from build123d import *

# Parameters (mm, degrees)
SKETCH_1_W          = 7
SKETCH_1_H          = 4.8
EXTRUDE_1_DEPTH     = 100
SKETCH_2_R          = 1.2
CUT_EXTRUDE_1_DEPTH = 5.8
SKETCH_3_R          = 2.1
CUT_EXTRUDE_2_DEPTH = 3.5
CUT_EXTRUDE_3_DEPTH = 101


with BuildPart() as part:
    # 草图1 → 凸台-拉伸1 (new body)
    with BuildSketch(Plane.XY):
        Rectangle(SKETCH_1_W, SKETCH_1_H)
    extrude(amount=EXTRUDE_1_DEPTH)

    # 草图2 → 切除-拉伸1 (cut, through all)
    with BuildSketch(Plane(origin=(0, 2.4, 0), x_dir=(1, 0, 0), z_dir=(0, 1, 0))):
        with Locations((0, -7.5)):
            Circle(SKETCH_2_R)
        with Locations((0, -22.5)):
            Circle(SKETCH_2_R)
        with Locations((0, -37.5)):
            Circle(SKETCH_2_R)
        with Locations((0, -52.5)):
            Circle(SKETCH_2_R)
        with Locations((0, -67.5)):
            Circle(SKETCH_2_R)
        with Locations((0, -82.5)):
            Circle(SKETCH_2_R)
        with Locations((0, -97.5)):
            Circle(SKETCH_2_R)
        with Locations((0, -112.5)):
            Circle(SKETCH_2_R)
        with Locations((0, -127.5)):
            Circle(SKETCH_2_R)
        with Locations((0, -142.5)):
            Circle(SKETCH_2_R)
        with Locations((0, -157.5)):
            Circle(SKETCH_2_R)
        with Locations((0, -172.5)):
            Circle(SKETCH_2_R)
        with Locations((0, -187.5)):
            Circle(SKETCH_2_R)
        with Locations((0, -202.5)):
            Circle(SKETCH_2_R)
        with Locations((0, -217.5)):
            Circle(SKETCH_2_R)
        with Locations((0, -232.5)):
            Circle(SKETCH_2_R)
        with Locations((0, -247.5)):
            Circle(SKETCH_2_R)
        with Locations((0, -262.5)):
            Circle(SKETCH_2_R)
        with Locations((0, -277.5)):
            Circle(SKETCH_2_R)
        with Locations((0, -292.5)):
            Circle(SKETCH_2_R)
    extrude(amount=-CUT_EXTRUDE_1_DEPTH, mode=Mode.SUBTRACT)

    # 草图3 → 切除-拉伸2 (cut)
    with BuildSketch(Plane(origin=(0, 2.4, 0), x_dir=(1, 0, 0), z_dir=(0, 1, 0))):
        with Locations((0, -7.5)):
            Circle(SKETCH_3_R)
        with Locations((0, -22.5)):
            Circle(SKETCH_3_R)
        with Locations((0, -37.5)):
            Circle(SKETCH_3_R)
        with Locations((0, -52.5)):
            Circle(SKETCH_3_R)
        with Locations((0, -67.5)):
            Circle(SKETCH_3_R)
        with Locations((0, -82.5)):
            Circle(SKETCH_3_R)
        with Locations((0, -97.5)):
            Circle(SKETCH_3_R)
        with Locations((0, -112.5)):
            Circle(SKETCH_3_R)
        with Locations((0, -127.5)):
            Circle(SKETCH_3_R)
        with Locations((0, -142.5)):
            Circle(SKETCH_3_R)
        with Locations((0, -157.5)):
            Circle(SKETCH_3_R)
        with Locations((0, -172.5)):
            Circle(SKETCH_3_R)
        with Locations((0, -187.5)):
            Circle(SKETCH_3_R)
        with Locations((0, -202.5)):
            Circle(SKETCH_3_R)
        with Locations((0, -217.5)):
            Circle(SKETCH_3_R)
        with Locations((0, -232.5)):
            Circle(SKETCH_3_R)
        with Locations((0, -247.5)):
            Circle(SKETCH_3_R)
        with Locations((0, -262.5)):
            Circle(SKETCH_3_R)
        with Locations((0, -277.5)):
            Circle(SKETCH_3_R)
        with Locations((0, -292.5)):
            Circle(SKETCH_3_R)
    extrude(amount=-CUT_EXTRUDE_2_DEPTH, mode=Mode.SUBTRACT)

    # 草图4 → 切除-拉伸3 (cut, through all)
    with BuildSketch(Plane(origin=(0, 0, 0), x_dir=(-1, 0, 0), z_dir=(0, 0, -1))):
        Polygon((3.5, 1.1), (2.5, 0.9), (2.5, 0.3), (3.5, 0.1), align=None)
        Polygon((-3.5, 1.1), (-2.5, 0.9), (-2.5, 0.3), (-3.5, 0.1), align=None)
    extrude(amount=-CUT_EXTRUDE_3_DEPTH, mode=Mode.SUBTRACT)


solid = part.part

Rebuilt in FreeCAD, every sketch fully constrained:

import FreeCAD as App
import Part
import Sketcher

doc = App.newDocument("Part")
body = doc.addObject("PartDesign::Body", "Body")

sketch1 = doc.addObject("Sketcher::SketchObject", "Sketch")
body.addObject(sketch1)
sketch1.AttachmentSupport = (doc.XY_Plane, [""])
sketch1.MapMode = "FlatFace"
sketch1.addGeometry([
    Part.LineSegment(App.Vector(-3.5, 2.4, 0), App.Vector(-3.5, -2.4, 0)),
    Part.LineSegment(App.Vector(-3.5, -2.4, 0), App.Vector(3.5, -2.4, 0)),
    Part.LineSegment(App.Vector(3.5, -2.4, 0), App.Vector(3.5, 2.4, 0)),
    Part.LineSegment(App.Vector(3.5, 2.4, 0), App.Vector(-3.5, 2.4, 0)),
], False)
sketch1.addConstraint([
    Sketcher.Constraint("Coincident", 0, 2, 1, 1),
    Sketcher.Constraint("Coincident", 1, 2, 2, 1),
    Sketcher.Constraint("Coincident", 2, 2, 3, 1),
    Sketcher.Constraint("Coincident", 3, 2, 0, 1),
    Sketcher.Constraint("Vertical", 0),
    Sketcher.Constraint("Horizontal", 1),
    Sketcher.Constraint("Vertical", 2),
    Sketcher.Constraint("Horizontal", 3),
    Sketcher.Constraint("Symmetric", 0, 2, 2, 2, -1, 1),
    Sketcher.Constraint("DistanceX", 1, 1, 1, 2, 7.0),
    Sketcher.Constraint("DistanceY", 0, 2, 0, 1, 4.8),
])
pad1 = doc.addObject("PartDesign::Pad", "Pad")
body.addObject(pad1)
pad1.Profile = sketch1
pad1.Length = 100

sketch2 = doc.addObject("Sketcher::SketchObject", "Sketch001")
body.addObject(sketch2)
sketch2.AttachmentSupport = (doc.XZ_Plane, [""])
sketch2.MapMode = "FlatFace"
sketch2.AttachmentOffset = App.Placement(App.Vector(0, 0, -2.4), App.Rotation())
sketch2.addGeometry([
    Part.Circle(App.Vector(0, 7.5, 0), App.Vector(0, 0, 1), 1.2),
    Part.Circle(App.Vector(0, 22.5, 0), App.Vector(0, 0, 1), 1.2),
    Part.Circle(App.Vector(0, 37.5, 0), App.Vector(0, 0, 1), 1.2),
    Part.Circle(App.Vector(0, 52.5, 0), App.Vector(0, 0, 1), 1.2),
    Part.Circle(App.Vector(0, 67.5, 0), App.Vector(0, 0, 1), 1.2),
    Part.Circle(App.Vector(0, 82.5, 0), App.Vector(0, 0, 1), 1.2),
    Part.Circle(App.Vector(0, 97.5, 0), App.Vector(0, 0, 1), 1.2),
    Part.Circle(App.Vector(0, 112.5, 0), App.Vector(0, 0, 1), 1.2),
    Part.Circle(App.Vector(0, 127.5, 0), App.Vector(0, 0, 1), 1.2),
    Part.Circle(App.Vector(0, 142.5, 0), App.Vector(0, 0, 1), 1.2),
    Part.Circle(App.Vector(0, 157.5, 0), App.Vector(0, 0, 1), 1.2),
    Part.Circle(App.Vector(0, 172.5, 0), App.Vector(0, 0, 1), 1.2),
    Part.Circle(App.Vector(0, 187.5, 0), App.Vector(0, 0, 1), 1.2),
    Part.Circle(App.Vector(0, 202.5, 0), App.Vector(0, 0, 1), 1.2),
    Part.Circle(App.Vector(0, 217.5, 0), App.Vector(0, 0, 1), 1.2),
    Part.Circle(App.Vector(0, 232.5, 0), App.Vector(0, 0, 1), 1.2),
    Part.Circle(App.Vector(0, 247.5, 0), App.Vector(0, 0, 1), 1.2),
    Part.Circle(App.Vector(0, 262.5, 0), App.Vector(0, 0, 1), 1.2),
    Part.Circle(App.Vector(0, 277.5, 0), App.Vector(0, 0, 1), 1.2),
    Part.Circle(App.Vector(0, 292.5, 0), App.Vector(0, 0, 1), 1.2),
], False)
sketch2.addConstraint([
    Sketcher.Constraint("Equal", 0, 1),
    Sketcher.Constraint("Equal", 1, 2),
    Sketcher.Constraint("Equal", 2, 3),
    Sketcher.Constraint("Equal", 3, 4),
    Sketcher.Constraint("Equal", 4, 5),
    Sketcher.Constraint("Equal", 5, 6),
    Sketcher.Constraint("Equal", 6, 7),
    Sketcher.Constraint("Equal", 7, 8),
    Sketcher.Constraint("Equal", 8, 9),
    Sketcher.Constraint("Equal", 9, 10),
    Sketcher.Constraint("Equal", 10, 11),
    Sketcher.Constraint("Equal", 11, 12),
    Sketcher.Constraint("Equal", 12, 13),
    Sketcher.Constraint("Equal", 13, 14),
    Sketcher.Constraint("Equal", 14, 15),
    Sketcher.Constraint("Equal", 15, 16),
    Sketcher.Constraint("Equal", 16, 17),
    Sketcher.Constraint("Equal", 17, 18),
    Sketcher.Constraint("Equal", 18, 19),
    Sketcher.Constraint("PointOnObject", 0, 3, -2),
    Sketcher.Constraint("PointOnObject", 1, 3, -2),
    Sketcher.Constraint("PointOnObject", 2, 3, -2),
    Sketcher.Constraint("PointOnObject", 3, 3, -2),
    Sketcher.Constraint("PointOnObject", 4, 3, -2),
    Sketcher.Constraint("PointOnObject", 5, 3, -2),
    Sketcher.Constraint("PointOnObject", 6, 3, -2),
    Sketcher.Constraint("PointOnObject", 7, 3, -2),
    Sketcher.Constraint("PointOnObject", 8, 3, -2),
    Sketcher.Constraint("PointOnObject", 9, 3, -2),
    Sketcher.Constraint("PointOnObject", 10, 3, -2),
    Sketcher.Constraint("PointOnObject", 11, 3, -2),
    Sketcher.Constraint("PointOnObject", 12, 3, -2),
    Sketcher.Constraint("PointOnObject", 13, 3, -2),
    Sketcher.Constraint("PointOnObject", 14, 3, -2),
    Sketcher.Constraint("PointOnObject", 15, 3, -2),
    Sketcher.Constraint("PointOnObject", 16, 3, -2),
    Sketcher.Constraint("PointOnObject", 17, 3, -2),
    Sketcher.Constraint("PointOnObject", 18, 3, -2),
    Sketcher.Constraint("PointOnObject", 19, 3, -2),
    Sketcher.Constraint("Diameter", 0, 2.4),
    Sketcher.Constraint("DistanceY", 0, 3, 1, 3, 15.0),
    Sketcher.Constraint("DistanceY", 1, 3, 2, 3, 15.0),
    Sketcher.Constraint("DistanceY", 2, 3, 3, 3, 15.0),
    Sketcher.Constraint("DistanceY", 3, 3, 4, 3, 15.0),
    Sketcher.Constraint("DistanceY", 4, 3, 5, 3, 15.0),
    Sketcher.Constraint("DistanceY", 5, 3, 6, 3, 15.0),
    Sketcher.Constraint("DistanceY", 6, 3, 7, 3, 15.0),
    Sketcher.Constraint("DistanceY", 7, 3, 8, 3, 15.0),
    Sketcher.Constraint("DistanceY", 8, 3, 9, 3, 15.0),
    Sketcher.Constraint("DistanceY", 9, 3, 10, 3, 15.0),
    Sketcher.Constraint("DistanceY", 10, 3, 11, 3, 15.0),
    Sketcher.Constraint("DistanceY", 11, 3, 12, 3, 15.0),
    Sketcher.Constraint("DistanceY", 12, 3, 13, 3, 15.0),
    Sketcher.Constraint("DistanceY", 13, 3, 14, 3, 15.0),
    Sketcher.Constraint("DistanceY", 14, 3, 15, 3, 15.0),
    Sketcher.Constraint("DistanceY", 15, 3, 16, 3, 15.0),
    Sketcher.Constraint("DistanceY", 16, 3, 17, 3, 15.0),
    Sketcher.Constraint("DistanceY", 17, 3, 18, 3, 15.0),
    Sketcher.Constraint("DistanceY", 18, 3, 19, 3, 15.0),
    Sketcher.Constraint("DistanceY", -1, 1, 0, 3, 7.5),
])
pocket1 = doc.addObject("PartDesign::Pocket", "Pocket")
body.addObject(pocket1)
pocket1.Profile = sketch2
pocket1.Type = "ThroughAll"
pocket1.Reversed = True

sketch3 = doc.addObject("Sketcher::SketchObject", "Sketch002")
body.addObject(sketch3)
sketch3.AttachmentSupport = (doc.XZ_Plane, [""])
sketch3.MapMode = "FlatFace"
sketch3.AttachmentOffset = App.Placement(App.Vector(0, 0, -2.4), App.Rotation())
sketch3.addGeometry([
    Part.Circle(App.Vector(0, 7.5, 0), App.Vector(0, 0, 1), 2.1),
    Part.Circle(App.Vector(0, 22.5, 0), App.Vector(0, 0, 1), 2.1),
    Part.Circle(App.Vector(0, 37.5, 0), App.Vector(0, 0, 1), 2.1),
    Part.Circle(App.Vector(0, 52.5, 0), App.Vector(0, 0, 1), 2.1),
    Part.Circle(App.Vector(0, 67.5, 0), App.Vector(0, 0, 1), 2.1),
    Part.Circle(App.Vector(0, 82.5, 0), App.Vector(0, 0, 1), 2.1),
    Part.Circle(App.Vector(0, 97.5, 0), App.Vector(0, 0, 1), 2.1),
    Part.Circle(App.Vector(0, 112.5, 0), App.Vector(0, 0, 1), 2.1),
    Part.Circle(App.Vector(0, 127.5, 0), App.Vector(0, 0, 1), 2.1),
    Part.Circle(App.Vector(0, 142.5, 0), App.Vector(0, 0, 1), 2.1),
    Part.Circle(App.Vector(0, 157.5, 0), App.Vector(0, 0, 1), 2.1),
    Part.Circle(App.Vector(0, 172.5, 0), App.Vector(0, 0, 1), 2.1),
    Part.Circle(App.Vector(0, 187.5, 0), App.Vector(0, 0, 1), 2.1),
    Part.Circle(App.Vector(0, 202.5, 0), App.Vector(0, 0, 1), 2.1),
    Part.Circle(App.Vector(0, 217.5, 0), App.Vector(0, 0, 1), 2.1),
    Part.Circle(App.Vector(0, 232.5, 0), App.Vector(0, 0, 1), 2.1),
    Part.Circle(App.Vector(0, 247.5, 0), App.Vector(0, 0, 1), 2.1),
    Part.Circle(App.Vector(0, 262.5, 0), App.Vector(0, 0, 1), 2.1),
    Part.Circle(App.Vector(0, 277.5, 0), App.Vector(0, 0, 1), 2.1),
    Part.Circle(App.Vector(0, 292.5, 0), App.Vector(0, 0, 1), 2.1),
], False)
sketch3.addConstraint([
    Sketcher.Constraint("Equal", 0, 1),
    Sketcher.Constraint("Equal", 1, 2),
    Sketcher.Constraint("Equal", 2, 3),
    Sketcher.Constraint("Equal", 3, 4),
    Sketcher.Constraint("Equal", 4, 5),
    Sketcher.Constraint("Equal", 5, 6),
    Sketcher.Constraint("Equal", 6, 7),
    Sketcher.Constraint("Equal", 7, 8),
    Sketcher.Constraint("Equal", 8, 9),
    Sketcher.Constraint("Equal", 9, 10),
    Sketcher.Constraint("Equal", 10, 11),
    Sketcher.Constraint("Equal", 11, 12),
    Sketcher.Constraint("Equal", 12, 13),
    Sketcher.Constraint("Equal", 13, 14),
    Sketcher.Constraint("Equal", 14, 15),
    Sketcher.Constraint("Equal", 15, 16),
    Sketcher.Constraint("Equal", 16, 17),
    Sketcher.Constraint("Equal", 17, 18),
    Sketcher.Constraint("Equal", 18, 19),
    Sketcher.Constraint("PointOnObject", 0, 3, -2),
    Sketcher.Constraint("PointOnObject", 1, 3, -2),
    Sketcher.Constraint("PointOnObject", 2, 3, -2),
    Sketcher.Constraint("PointOnObject", 3, 3, -2),
    Sketcher.Constraint("PointOnObject", 4, 3, -2),
    Sketcher.Constraint("PointOnObject", 5, 3, -2),
    Sketcher.Constraint("PointOnObject", 6, 3, -2),
    Sketcher.Constraint("PointOnObject", 7, 3, -2),
    Sketcher.Constraint("PointOnObject", 8, 3, -2),
    Sketcher.Constraint("PointOnObject", 9, 3, -2),
    Sketcher.Constraint("PointOnObject", 10, 3, -2),
    Sketcher.Constraint("PointOnObject", 11, 3, -2),
    Sketcher.Constraint("PointOnObject", 12, 3, -2),
    Sketcher.Constraint("PointOnObject", 13, 3, -2),
    Sketcher.Constraint("PointOnObject", 14, 3, -2),
    Sketcher.Constraint("PointOnObject", 15, 3, -2),
    Sketcher.Constraint("PointOnObject", 16, 3, -2),
    Sketcher.Constraint("PointOnObject", 17, 3, -2),
    Sketcher.Constraint("PointOnObject", 18, 3, -2),
    Sketcher.Constraint("PointOnObject", 19, 3, -2),
    Sketcher.Constraint("Diameter", 0, 4.2),
    Sketcher.Constraint("DistanceY", 0, 3, 1, 3, 15.0),
    Sketcher.Constraint("DistanceY", 1, 3, 2, 3, 15.0),
    Sketcher.Constraint("DistanceY", 2, 3, 3, 3, 15.0),
    Sketcher.Constraint("DistanceY", 3, 3, 4, 3, 15.0),
    Sketcher.Constraint("DistanceY", 4, 3, 5, 3, 15.0),
    Sketcher.Constraint("DistanceY", 5, 3, 6, 3, 15.0),
    Sketcher.Constraint("DistanceY", 6, 3, 7, 3, 15.0),
    Sketcher.Constraint("DistanceY", 7, 3, 8, 3, 15.0),
    Sketcher.Constraint("DistanceY", 8, 3, 9, 3, 15.0),
    Sketcher.Constraint("DistanceY", 9, 3, 10, 3, 15.0),
    Sketcher.Constraint("DistanceY", 10, 3, 11, 3, 15.0),
    Sketcher.Constraint("DistanceY", 11, 3, 12, 3, 15.0),
    Sketcher.Constraint("DistanceY", 12, 3, 13, 3, 15.0),
    Sketcher.Constraint("DistanceY", 13, 3, 14, 3, 15.0),
    Sketcher.Constraint("DistanceY", 14, 3, 15, 3, 15.0),
    Sketcher.Constraint("DistanceY", 15, 3, 16, 3, 15.0),
    Sketcher.Constraint("DistanceY", 16, 3, 17, 3, 15.0),
    Sketcher.Constraint("DistanceY", 17, 3, 18, 3, 15.0),
    Sketcher.Constraint("DistanceY", 18, 3, 19, 3, 15.0),
    Sketcher.Constraint("DistanceY", -1, 1, 0, 3, 7.5),
])
pocket2 = doc.addObject("PartDesign::Pocket", "Pocket001")
body.addObject(pocket2)
pocket2.Profile = sketch3
pocket2.Length = 3.5
pocket2.Reversed = True

sketch4 = doc.addObject("Sketcher::SketchObject", "Sketch003")
body.addObject(sketch4)
sketch4.AttachmentSupport = (doc.XY_Plane, [""])
sketch4.MapMode = "FlatFace"
sketch4.addGeometry([
    Part.LineSegment(App.Vector(-3.5, 1.1, 0), App.Vector(-2.5, 0.9, 0)),
    Part.LineSegment(App.Vector(-2.5, 0.9, 0), App.Vector(-2.5, 0.3, 0)),
    Part.LineSegment(App.Vector(-2.5, 0.3, 0), App.Vector(-3.5, 0.1, 0)),
    Part.LineSegment(App.Vector(-3.5, 0.1, 0), App.Vector(-3.5, 1.1, 0)),
    Part.LineSegment(App.Vector(2.5, 0.9, 0), App.Vector(3.5, 1.1, 0)),
    Part.LineSegment(App.Vector(3.5, 1.1, 0), App.Vector(3.5, 0.1, 0)),
    Part.LineSegment(App.Vector(3.5, 0.1, 0), App.Vector(2.5, 0.3, 0)),
    Part.LineSegment(App.Vector(2.5, 0.3, 0), App.Vector(2.5, 0.9, 0)),
], False)
sketch4.addConstraint([
    Sketcher.Constraint("Coincident", 0, 2, 1, 1),
    Sketcher.Constraint("Coincident", 1, 2, 2, 1),
    Sketcher.Constraint("Coincident", 2, 2, 3, 1),
    Sketcher.Constraint("Coincident", 3, 2, 0, 1),
    Sketcher.Constraint("Coincident", 4, 2, 5, 1),
    Sketcher.Constraint("Coincident", 5, 2, 6, 1),
    Sketcher.Constraint("Coincident", 6, 2, 7, 1),
    Sketcher.Constraint("Coincident", 7, 2, 4, 1),
    Sketcher.Constraint("Vertical", 1),
    Sketcher.Constraint("Vertical", 3),
    Sketcher.Constraint("Vertical", 5),
    Sketcher.Constraint("Vertical", 7),
    Sketcher.Constraint("Symmetric", 3, 2, 4, 2, -2),
    Sketcher.Constraint("Symmetric", 1, 2, 6, 2, -2),
    Sketcher.Constraint("Parallel", 2, 4),
    Sketcher.Constraint("Parallel", 0, 6),
    Sketcher.Constraint("Horizontal", 2, 2, 5, 2),
    Sketcher.Constraint("DistanceY", 3, 1, 3, 2, 1.0),
    Sketcher.Constraint("DistanceY", 1, 2, 1, 1, 0.6),
    Sketcher.Constraint("DistanceX", 2, 2, 1, 2, 1.0),
    Sketcher.Constraint("DistanceX", 0, 2, 4, 2, 6.0),
    Sketcher.Constraint("DistanceY", -1, 1, 0, 2, 0.9),
])
pocket3 = doc.addObject("PartDesign::Pocket", "Pocket002")
body.addObject(pocket3)
pocket3.Profile = sketch4
pocket3.Type = "ThroughAll"
pocket3.Reversed = True

doc.recompute()
